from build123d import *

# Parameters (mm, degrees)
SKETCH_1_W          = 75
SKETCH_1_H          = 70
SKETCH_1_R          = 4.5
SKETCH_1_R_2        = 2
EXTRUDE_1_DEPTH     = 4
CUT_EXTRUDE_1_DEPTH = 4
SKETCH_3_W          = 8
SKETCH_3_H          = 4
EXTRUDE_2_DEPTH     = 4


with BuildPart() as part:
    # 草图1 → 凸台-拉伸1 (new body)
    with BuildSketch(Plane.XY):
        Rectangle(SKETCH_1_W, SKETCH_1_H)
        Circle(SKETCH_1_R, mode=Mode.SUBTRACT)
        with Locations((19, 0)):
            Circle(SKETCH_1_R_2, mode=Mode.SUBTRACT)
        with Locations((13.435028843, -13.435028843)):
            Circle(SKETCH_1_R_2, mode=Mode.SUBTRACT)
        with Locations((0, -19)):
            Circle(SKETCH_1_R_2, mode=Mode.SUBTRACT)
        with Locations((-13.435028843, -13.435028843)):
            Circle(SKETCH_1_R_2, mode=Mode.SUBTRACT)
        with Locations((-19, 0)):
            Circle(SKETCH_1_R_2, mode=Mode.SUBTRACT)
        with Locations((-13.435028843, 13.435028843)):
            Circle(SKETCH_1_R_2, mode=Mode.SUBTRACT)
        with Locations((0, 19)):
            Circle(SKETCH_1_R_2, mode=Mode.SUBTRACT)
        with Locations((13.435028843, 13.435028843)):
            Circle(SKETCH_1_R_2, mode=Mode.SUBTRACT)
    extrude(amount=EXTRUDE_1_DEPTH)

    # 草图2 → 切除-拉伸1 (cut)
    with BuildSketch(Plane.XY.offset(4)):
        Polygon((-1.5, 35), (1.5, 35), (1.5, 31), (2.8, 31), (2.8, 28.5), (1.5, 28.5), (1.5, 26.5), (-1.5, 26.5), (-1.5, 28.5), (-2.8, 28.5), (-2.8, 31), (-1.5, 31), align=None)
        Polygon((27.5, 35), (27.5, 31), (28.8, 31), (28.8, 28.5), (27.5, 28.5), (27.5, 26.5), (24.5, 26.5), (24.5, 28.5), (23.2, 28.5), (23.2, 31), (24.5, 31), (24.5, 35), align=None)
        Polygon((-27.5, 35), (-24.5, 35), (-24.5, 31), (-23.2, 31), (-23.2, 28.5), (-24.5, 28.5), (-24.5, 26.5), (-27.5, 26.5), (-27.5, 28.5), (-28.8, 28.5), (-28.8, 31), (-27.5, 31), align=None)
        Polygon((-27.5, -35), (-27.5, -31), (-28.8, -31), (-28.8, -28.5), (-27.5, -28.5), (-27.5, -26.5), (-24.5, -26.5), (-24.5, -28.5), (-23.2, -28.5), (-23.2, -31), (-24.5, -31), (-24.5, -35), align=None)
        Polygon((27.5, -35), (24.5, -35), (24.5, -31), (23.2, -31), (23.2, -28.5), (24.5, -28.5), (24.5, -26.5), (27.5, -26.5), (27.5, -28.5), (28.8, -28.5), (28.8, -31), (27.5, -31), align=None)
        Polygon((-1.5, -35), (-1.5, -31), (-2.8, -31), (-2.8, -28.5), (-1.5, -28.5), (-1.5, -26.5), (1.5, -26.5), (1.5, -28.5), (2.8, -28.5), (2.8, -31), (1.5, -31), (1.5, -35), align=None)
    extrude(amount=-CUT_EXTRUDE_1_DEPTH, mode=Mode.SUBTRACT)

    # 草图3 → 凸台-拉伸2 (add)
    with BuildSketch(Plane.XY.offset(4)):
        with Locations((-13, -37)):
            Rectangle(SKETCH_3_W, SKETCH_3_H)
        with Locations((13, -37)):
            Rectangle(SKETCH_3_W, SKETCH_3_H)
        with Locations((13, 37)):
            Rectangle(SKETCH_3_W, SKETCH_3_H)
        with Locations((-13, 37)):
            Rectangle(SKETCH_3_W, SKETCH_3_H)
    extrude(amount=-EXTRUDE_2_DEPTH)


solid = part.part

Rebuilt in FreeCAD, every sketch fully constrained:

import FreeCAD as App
import Part
import Sketcher

V = App.Vector

doc = App.newDocument("Part")
body = doc.addObject("PartDesign::Body", "Body")

# Sketch on XY plane
sketch1 = body.newObject("Sketcher::SketchObject", "Sketch")
sketch1.AttachmentSupport = (doc.getObject("XY_Plane"), [""])
sketch1.MapMode = "FlatFace"
sketch1.addGeometry([
    Part.LineSegment(V(-37.5, 35, 0), V(-37.5, -35, 0)),  # 0
    Part.LineSegment(V(-37.5, -35, 0), V(37.5, -35, 0)),  # 1
    Part.LineSegment(V(37.5, -35, 0), V(37.5, 35, 0)),  # 2
    Part.LineSegment(V(37.5, 35, 0), V(-37.5, 35, 0)),  # 3
    Part.Circle(V(-13.4, -13.4, 0), V(0, 0, 1), 2),  # 4
    Part.Circle(V(0, -19, 0), V(0, 0, 1), 2),  # 5
    Part.Circle(V(13.4, -13.4, 0), V(0, 0, 1), 2),  # 6
    Part.Circle(V(-19, 0, 0), V(0, 0, 1), 2),  # 7
    Part.Circle(V(-13.4, 13.4, 0), V(0, 0, 1), 2),  # 8
    Part.Circle(V(0, 0, 0), V(0, 0, 1), 4.5),  # 9
    Part.Circle(V(19, 0, 0), V(0, 0, 1), 2),  # 10
    Part.Circle(V(0, 19, 0), V(0, 0, 1), 2),  # 11
    Part.Circle(V(13.4, 13.4, 0), V(0, 0, 1), 2),  # 12
], False)
sketch1.addConstraint([
    Sketcher.Constraint("Coincident", 0, 2, 1, 1),
    Sketcher.Constraint("Coincident", 1, 2, 2, 1),
    Sketcher.Constraint("Coincident", 2, 2, 3, 1),
    Sketcher.Constraint("Coincident", 3, 2, 0, 1),
    Sketcher.Constraint("Vertical", 0),
    Sketcher.Constraint("Horizontal", 1),
    Sketcher.Constraint("Vertical", 2),
    Sketcher.Constraint("Horizontal", 3),
    Sketcher.Constraint("Coincident", 9, 3, -1, 1),
    Sketcher.Constraint("Equal", 4, 5),
    Sketcher.Constraint("Equal", 5, 6),
    Sketcher.Constraint("Equal", 6, 7),
    Sketcher.Constraint("Equal", 7, 8),
    Sketcher.Constraint("Equal", 8, 10),
    Sketcher.Constraint("Equal", 10, 11),
    Sketcher.Constraint("Equal", 11, 12),
    Sketcher.Constraint("Symmetric", 6, 3, 8, 3, -1, 1),
    Sketcher.Constraint("Symmetric", 7, 3, 10, 3, -1, 1),
    Sketcher.Constraint("Symmetric", 5, 3, 11, 3, -1, 1),
    Sketcher.Constraint("Symmetric", 4, 3, 12, 3, -1, 1),
    Sketcher.Constraint("Symmetric", 0, 2, 2, 2, -1, 1),
    Sketcher.Constraint("Symmetric", 4, 3, 6, 3, -2),
    Sketcher.Constraint("PointOnObject", 5, 3, -2),
    Sketcher.Constraint("PointOnObject", 7, 3, -1),
    Sketcher.Constraint("Diameter", 4, 4.0),
    Sketcher.Constraint("Diameter", 9, 9.0),
    Sketcher.Constraint("DistanceX", 1, 1, 1, 2, 75.0),
    Sketcher.Constraint("DistanceY", 0, 2, 0, 1, 70.0),
    Sketcher.Constraint("DistanceY", 5, 3, -1, 1, 19.0),
    Sketcher.Constraint("DistanceX", 7, 3, -1, 1, 19.0),
    Sketcher.Constraint("DistanceX", 4, 3, -1, 1, 13.435029),
    Sketcher.Constraint("DistanceY", 4, 3, -1, 1, 13.435029),
])
pad1 = body.newObject("PartDesign::Pad", "Pad")
pad1.Profile = sketch1
pad1.Length = 4

# Sketch on XY plane
sketch2 = body.newObject("Sketcher::SketchObject", "Sketch001")
sketch2.AttachmentSupport = (doc.getObject("XY_Plane"), [""])
sketch2.MapMode = "FlatFace"
sketch2.AttachmentOffset = App.Placement(V(0, 0, 4), App.Rotation())
sketch2.addGeometry([
    Part.LineSegment(V(1.5, 35, 0), V(-1.5, 35, 0)),  # 0
    Part.LineSegment(V(-1.5, 35, 0), V(-1.5, 31, 0)),  # 1
    Part.LineSegment(V(-1.5, 31, 0), V(-2.8, 31, 0)),  # 2
    Part.LineSegment(V(-2.8, 31, 0), V(-2.8, 28.5, 0)),  # 3
    Part.LineSegment(V(-2.8, 28.5, 0), V(-1.5, 28.5, 0)),  # 4
    Part.LineSegment(V(-1.5, 28.5, 0), V(-1.5, 26.5, 0)),  # 5
    Part.LineSegment(V(-1.5, 26.5, 0), V(1.5, 26.5, 0)),  # 6
    Part.LineSegment(V(1.5, 26.5, 0), V(1.5, 28.5, 0)),  # 7
    Part.LineSegment(V(1.5, 28.5, 0), V(2.8, 28.5, 0)),  # 8
    Part.LineSegment(V(2.8, 28.5, 0), V(2.8, 31, 0)),  # 9
    Part.LineSegment(V(2.8, 31, 0), V(1.5, 31, 0)),  # 10
    Part.LineSegment(V(1.5, 31, 0), V(1.5, 35, 0)),  # 11
    Part.LineSegment(V(27.5, 31, 0), V(27.5, 35, 0)),  # 12
    Part.LineSegment(V(27.5, 35, 0), V(24.5, 35, 0)),  # 13
    Part.LineSegment(V(24.5, 35, 0), V(24.5, 31, 0)),  # 14
    Part.LineSegment(V(24.5, 31, 0), V(23.2, 31, 0)),  # 15
    Part.LineSegment(V(23.2, 31, 0), V(23.2, 28.5, 0)),  # 16
    Part.LineSegment(V(23.2, 28.5, 0), V(24.5, 28.5, 0)),  # 17
    Part.LineSegment(V(24.5, 28.5, 0), V(24.5, 26.5, 0)),  # 18
    Part.LineSegment(V(24.5, 26.5, 0), V(27.5, 26.5, 0)),  # 19
    Part.LineSegment(V(27.5, 26.5, 0), V(27.5, 28.5, 0)),  # 20
    Part.LineSegment(V(27.5, 28.5, 0), V(28.8, 28.5, 0)),  # 21
    Part.LineSegment(V(28.8, 28.5, 0), V(28.8, 31, 0)),  # 22
    Part.LineSegment(V(28.8, 31, 0), V(27.5, 31, 0)),  # 23
    Part.LineSegment(V(-24.5, 35, 0), V(-27.5, 35, 0)),  # 24
    Part.LineSegment(V(-27.5, 35, 0), V(-27.5, 31, 0)),  # 25
    Part.LineSegment(V(-27.5, 31, 0), V(-28.8, 31, 0)),  # 26
    Part.LineSegment(V(-28.8, 31, 0), V(-28.8, 28.5, 0)),  # 27
    Part.LineSegment(V(-28.8, 28.5, 0), V(-27.5, 28.5, 0)),  # 28
    Part.LineSegment(V(-27.5, 28.5, 0), V(-27.5, 26.5, 0)),  # 29
    Part.LineSegment(V(-27.5, 26.5, 0), V(-24.5, 26.5, 0)),  # 30
    Part.LineSegment(V(-24.5, 26.5, 0), V(-24.5, 28.5, 0)),  # 31
    Part.LineSegment(V(-24.5, 28.5, 0), V(-23.2, 28.5, 0)),  # 32
    Part.LineSegment(V(-23.2, 28.5, 0), V(-23.2, 31, 0)),  # 33
    Part.LineSegment(V(-23.2, 31, 0), V(-24.5, 31, 0)),  # 34
    Part.LineSegment(V(-24.5, 31, 0), V(-24.5, 35, 0)),  # 35
    Part.LineSegment(V(-27.5, -31, 0), V(-27.5, -35, 0)),  # 36
    Part.LineSegment(V(-27.5, -35, 0), V(-24.5, -35, 0)),  # 37
    Part.LineSegment(V(-24.5, -35, 0), V(-24.5, -31, 0)),  # 38
    Part.LineSegment(V(-24.5, -31, 0), V(-23.2, -31, 0)),  # 39
    Part.LineSegment(V(-23.2, -31, 0), V(-23.2, -28.5, 0)),  # 40
    Part.LineSegment(V(-23.2, -28.5, 0), V(-24.5, -28.5, 0)),  # 41
    Part.LineSegment(V(-24.5, -28.5, 0), V(-24.5, -26.5, 0)),  # 42
    Part.LineSegment(V(-24.5, -26.5, 0), V(-27.5, -26.5, 0)),  # 43
    Part.LineSegment(V(-27.5, -26.5, 0), V(-27.5, -28.5, 0)),  # 44
    Part.LineSegment(V(-27.5, -28.5, 0), V(-28.8, -28.5, 0)),  # 45
    Part.LineSegment(V(-28.8, -28.5, 0), V(-28.8, -31, 0)),  # 46
    Part.LineSegment(V(-28.8, -31, 0), V(-27.5, -31, 0)),  # 47
    Part.LineSegment(V(24.5, -35, 0), V(27.5, -35, 0)),  # 48
    Part.LineSegment(V(27.5, -35, 0), V(27.5, -31, 0)),  # 49
    Part.LineSegment(V(27.5, -31, 0), V(28.8, -31, 0)),  # 50
    Part.LineSegment(V(28.8, -31, 0), V(28.8, -28.5, 0)),  # 51
    Part.LineSegment(V(28.8, -28.5, 0), V(27.5, -28.5, 0)),  # 52
    Part.LineSegment(V(27.5, -28.5, 0), V(27.5, -26.5, 0)),  # 53
    Part.LineSegment(V(27.5, -26.5, 0), V(24.5, -26.5, 0)),  # 54
    Part.LineSegment(V(24.5, -26.5, 0), V(24.5, -28.5, 0)),  # 55
    Part.LineSegment(V(24.5, -28.5, 0), V(23.2, -28.5, 0)),  # 56
    Part.LineSegment(V(23.2, -28.5, 0), V(23.2, -31, 0)),  # 57
    Part.LineSegment(V(23.2, -31, 0), V(24.5, -31, 0)),  # 58
    Part.LineSegment(V(24.5, -31, 0), V(24.5, -35, 0)),  # 59
    Part.LineSegment(V(-1.5, -31, 0), V(-1.5, -35, 0)),  # 60
    Part.LineSegment(V(-1.5, -35, 0), V(1.5, -35, 0)),  # 61
    Part.LineSegment(V(1.5, -35, 0), V(1.5, -31, 0)),  # 62
    Part.LineSegment(V(1.5, -31, 0), V(2.8, -31, 0)),  # 63
    Part.LineSegment(V(2.8, -31, 0), V(2.8, -28.5, 0)),  # 64
    Part.LineSegment(V(2.8, -28.5, 0), V(1.5, -28.5, 0)),  # 65
    Part.LineSegment(V(1.5, -28.5, 0), V(1.5, -26.5, 0)),  # 66
    Part.LineSegment(V(1.5, -26.5, 0), V(-1.5, -26.5, 0)),  # 67
    Part.LineSegment(V(-1.5, -26.5, 0), V(-1.5, -28.5, 0)),  # 68
    Part.LineSegment(V(-1.5, -28.5, 0), V(-2.8, -28.5, 0)),  # 69
    Part.LineSegment(V(-2.8, -28.5, 0), V(-2.8, -31, 0)),  # 70
    Part.LineSegment(V(-2.8, -31, 0), V(-1.5, -31, 0)),  # 71
], False)
sketch2.addConstraint([
    Sketcher.Constraint("Coincident", 0, 2, 1, 1),
    Sketcher.Constraint("Coincident", 1, 2, 2, 1),
    Sketcher.Constraint("Coincident", 2, 2, 3, 1),
    Sketcher.Constraint("Coincident", 3, 2, 4, 1),
    Sketcher.Constraint("Coincident", 4, 2, 5, 1),
    Sketcher.Constraint("Coincident", 5, 2, 6, 1),
    Sketcher.Constraint("Coincident", 6, 2, 7, 1),
    Sketcher.Constraint("Coincident", 7, 2, 8, 1),
    Sketcher.Constraint("Coincident", 8, 2, 9, 1),
    Sketcher.Constraint("Coincident", 9, 2, 10, 1),
    Sketcher.Constraint("Coincident", 10, 2, 11, 1),
    Sketcher.Constraint("Coincident", 11, 2, 0, 1),
    Sketcher.Constraint("Coincident", 12, 2, 13, 1),
    Sketcher.Constraint("Coincident", 13, 2, 14, 1),
    Sketcher.Constraint("Coincident", 14, 2, 15, 1),
    Sketcher.Constraint("Coincident", 15, 2, 16, 1),
    Sketcher.Constraint("Coincident", 16, 2, 17, 1),
    Sketcher.Constraint("Coincident", 17, 2, 18, 1),
    Sketcher.Constraint("Coincident", 18, 2, 19, 1),
    Sketcher.Constraint("Coincident", 19, 2, 20, 1),
    Sketcher.Constraint("Coincident", 20, 2, 21, 1),
    Sketcher.Constraint("Coincident", 21, 2, 22, 1),
    Sketcher.Constraint("Coincident", 22, 2, 23, 1),
    Sketcher.Constraint("Coincident", 23, 2, 12, 1),
    Sketcher.Constraint("Coincident", 24, 2, 25, 1),
    Sketcher.Constraint("Coincident", 25, 2, 26, 1),
    Sketcher.Constraint("Coincident", 26, 2, 27, 1),
    Sketcher.Constraint("Coincident", 27, 2, 28, 1),
    Sketcher.Constraint("Coincident", 28, 2, 29, 1),
    Sketcher.Constraint("Coincident", 29, 2, 30, 1),
    Sketcher.Constraint("Coincident", 30, 2, 31, 1),
    Sketcher.Constraint("Coincident", 31, 2, 32, 1),
    Sketcher.Constraint("Coincident", 32, 2, 33, 1),
    Sketcher.Constraint("Coincident", 33, 2, 34, 1),
    Sketcher.Constraint("Coincident", 34, 2, 35, 1),
    Sketcher.Constraint("Coincident", 35, 2, 24, 1),
    Sketcher.Constraint("Coincident", 36, 2, 37, 1),
    Sketcher.Constraint("Coincident", 37, 2, 38, 1),
    Sketcher.Constraint("Coincident", 38, 2, 39, 1),
    Sketcher.Constraint("Coincident", 39, 2, 40, 1),
    Sketcher.Constraint("Coincident", 40, 2, 41, 1),
    Sketcher.Constraint("Coincident", 41, 2, 42, 1),
    Sketcher.Constraint("Coincident", 42, 2, 43, 1),
    Sketcher.Constraint("Coincident", 43, 2, 44, 1),
    Sketcher.Constraint("Coincident", 44, 2, 45, 1),
    Sketcher.Constraint("Coincident", 45, 2, 46, 1),
    Sketcher.Constraint("Coincident", 46, 2, 47, 1),
    Sketcher.Constraint("Coincident", 47, 2, 36, 1),
    Sketcher.Constraint("Coincident", 48, 2, 49, 1),
    Sketcher.Constraint("Coincident", 49, 2, 50, 1),
    Sketcher.Constraint("Coincident", 50, 2, 51, 1),
    Sketcher.Constraint("Coincident", 51, 2, 52, 1),
    Sketcher.Constraint("Coincident", 52, 2, 53, 1),
    Sketcher.Constraint("Coincident", 53, 2, 54, 1),
    Sketcher.Constraint("Coincident", 54, 2, 55, 1),
    Sketcher.Constraint("Coincident", 55, 2, 56, 1),
    Sketcher.Constraint("Coincident", 56, 2, 57, 1),
    Sketcher.Constraint("Coincident", 57, 2, 58, 1),
    Sketcher.Constraint("Coincident", 58, 2, 59, 1),
    Sketcher.Constraint("Coincident", 59, 2, 48, 1),
    Sketcher.Constraint("Coincident", 60, 2, 61, 1),
    Sketcher.Constraint("Coincident", 61, 2, 62, 1),
    Sketcher.Constraint("Coincident", 62, 2, 63, 1),
    Sketcher.Constraint("Coincident", 63, 2, 64, 1),
    Sketcher.Constraint("Coincident", 64, 2, 65, 1),
    Sketcher.Constraint("Coincident", 65, 2, 66, 1),
    Sketcher.Constraint("Coincident", 66, 2, 67, 1),
    Sketcher.Constraint("Coincident", 67, 2, 68, 1),
    Sketcher.Constraint("Coincident", 68, 2, 69, 1),
    Sketcher.Constraint("Coincident", 69, 2, 70, 1),
    Sketcher.Constraint("Coincident", 70, 2, 71, 1),
    Sketcher.Constraint("Coincident", 71, 2, 60, 1),
    Sketcher.Constraint("Horizontal", 0),
    Sketcher.Constraint("Vertical", 1),
    Sketcher.Constraint("Horizontal", 2),
    Sketcher.Constraint("Vertical", 3),
    Sketcher.Constraint("Horizontal", 4),
    Sketcher.Constraint("Vertical", 5),
    Sketcher.Constraint("Horizontal", 6),
    Sketcher.Constraint("Vertical", 7),
    Sketcher.Constraint("Horizontal", 8),
    Sketcher.Constraint("Vertical", 9),
    Sketcher.Constraint("Horizontal", 10),
    Sketcher.Constraint("Vertical", 11),
    Sketcher.Constraint("Vertical", 12),
    Sketcher.Constraint("Horizontal", 13),
    Sketcher.Constraint("Vertical", 14),
    Sketcher.Constraint("Horizontal", 15),
    Sketcher.Constraint("Vertical", 16),
    Sketcher.Constraint("Horizontal", 17),
    Sketcher.Constraint("Vertical", 18),
    Sketcher.Constraint("Horizontal", 19),
    Sketcher.Constraint("Vertical", 20),
    Sketcher.Constraint("Horizontal", 21),
    Sketcher.Constraint("Vertical", 22),
    Sketcher.Constraint("Horizontal", 23),
    Sketcher.Constraint("Horizontal", 24),
    Sketcher.Constraint("Vertical", 25),
    Sketcher.Constraint("Horizontal", 26),
    Sketcher.Constraint("Vertical", 27),
    Sketcher.Constraint("Horizontal", 28),
    Sketcher.Constraint("Vertical", 29),
    Sketcher.Constraint("Horizontal", 30),
    Sketcher.Constraint("Vertical", 31),
    Sketcher.Constraint("Horizontal", 32),
    Sketcher.Constraint("Vertical", 33),
    Sketcher.Constraint("Horizontal", 34),
    Sketcher.Constraint("Vertical", 35),
    Sketcher.Constraint("Vertical", 36),
    Sketcher.Constraint("Horizontal", 37),
    Sketcher.Constraint("Vertical", 38),
    Sketcher.Constraint("Horizontal", 39),
    Sketcher.Constraint("Vertical", 40),
    Sketcher.Constraint("Horizontal", 41),
    Sketcher.Constraint("Vertical", 42),
    Sketcher.Constraint("Horizontal", 43),
    Sketcher.Constraint("Vertical", 44),
    Sketcher.Constraint("Horizontal", 45),
    Sketcher.Constraint("Vertical", 46),
    Sketcher.Constraint("Horizontal", 47),
    Sketcher.Constraint("Horizontal", 48),
    Sketcher.Constraint("Vertical", 49),
    Sketcher.Constraint("Horizontal", 50),
    Sketcher.Constraint("Vertical", 51),
    Sketcher.Constraint("Horizontal", 52),
    Sketcher.Constraint("Vertical", 53),
    Sketcher.Constraint("Horizontal", 54),
    Sketcher.Constraint("Vertical", 55),
    Sketcher.Constraint("Horizontal", 56),
    Sketcher.Constraint("Vertical", 57),
    Sketcher.Constraint("Horizontal", 58),
    Sketcher.Constraint("Vertical", 59),
    Sketcher.Constraint("Vertical", 60),
    Sketcher.Constraint("Horizontal", 61),
    Sketcher.Constraint("Vertical", 62),
    Sketcher.Constraint("Horizontal", 63),
    Sketcher.Constraint("Vertical", 64),
    Sketcher.Constraint("Horizontal", 65),
    Sketcher.Constraint("Vertical", 66),
    Sketcher.Constraint("Horizontal", 67),
    Sketcher.Constraint("Vertical", 68),
    Sketcher.Constraint("Horizontal", 69),
    Sketcher.Constraint("Vertical", 70),
    Sketcher.Constraint("Horizontal", 71),
    Sketcher.Constraint("Symmetric", 12, 2, 36, 2, -1, 1),
    Sketcher.Constraint("Symmetric", 14, 2, 38, 2, -1, 1),
    Sketcher.Constraint("Symmetric", 16, 2, 40, 2, -1, 1),
    Sketcher.Constraint("Symmetric", 18, 2, 42, 2, -1, 1),
    Sketcher.Constraint("Symmetric", 20, 2, 44, 2, -1, 1),
    Sketcher.Constraint("Symmetric", 22, 2, 46, 2, -1, 1),
    Sketcher.Constraint("Symmetric", 24, 2, 48, 2, -1, 1),
    Sketcher.Constraint("Symmetric", 26, 2, 50, 2, -1, 1),
    Sketcher.Constraint("Symmetric", 28, 2, 52, 2, -1, 1),
    Sketcher.Constraint("Symmetric", 30, 2, 54, 2, -1, 1),
    Sketcher.Constraint("Symmetric", 32, 2, 56, 2, -1, 1),
    Sketcher.Constraint("Symmetric", 34, 2, 58, 2, -1, 1),
    Sketcher.Constraint("Symmetric", 11, 2, 60, 2, -1, 1),
    Sketcher.Constraint("Symmetric", 1, 2, 62, 2, -1, 1),
    Sketcher.Constraint("Symmetric", 3, 2, 64, 2, -1, 1),
    Sketcher.Constraint("Symmetric", 5, 2, 66, 2, -1, 1),
    Sketcher.Constraint("Symmetric", 7, 2, 68, 2, -1, 1),
    Sketcher.Constraint("Symmetric", 9, 2, 70, 2, -1, 1),
    Sketcher.Constraint("Symmetric", 4, 2, 7, 2, -2),
    Sketcher.Constraint("Symmetric", 2, 2, 9, 2, -2),
    Sketcher.Constraint("Symmetric", 12, 2, 24, 2, -2),
    Sketcher.Constraint("Symmetric", 22, 2, 26, 2, -2),
    Sketcher.Constraint("Symmetric", 20, 2, 28, 2, -2),
    Sketcher.Constraint("Symmetric", 18, 2, 30, 2, -2),
    Sketcher.Constraint("Symmetric", 16, 2, 32, 2, -2),
    Sketcher.Constraint("Symmetric", 14, 2, 34, 2, -2),
    Sketcher.Constraint("Horizontal", 11, 2, 12, 2),
    Sketcher.Constraint("Horizontal", 10, 2, 14, 2),
    Sketcher.Constraint("Horizontal", 8, 2, 16, 2),
    Sketcher.Constraint("Horizontal", 6, 2, 18, 2),
    Sketcher.Constraint("Horizontal", 17, 2, 20, 2),
    Sketcher.Constraint("Horizontal", 15, 2, 22, 2),
    Sketcher.Constraint("Vertical", 1, 2, 4, 2),
    Sketcher.Constraint("Vertical", 7, 2, 10, 2),
    Sketcher.Constraint("Vertical", 14, 2, 17, 2),
    Sketcher.Constraint("Vertical", 12, 2, 19, 2),
    Sketcher.Constraint("Equal", 6, 13),
    Sketcher.Constraint("Equal", 10, 15),
    Sketcher.Constraint("Equal", 17, 21),
    Sketcher.Constraint("DistanceX", 0, 2, 0, 1, 3.0),
    Sketcher.Constraint("DistanceY", 1, 2, 1, 1, 4.0),
    Sketcher.Constraint("DistanceY", 5, 2, 5, 1, 2.0),
    Sketcher.Constraint("DistanceX", 2, 2, 2, 1, 1.3),
    Sketcher.Constraint("DistanceY", 3, 2, 3, 1, 2.5),
    Sketcher.Constraint("DistanceY", -1, 1, 0, 2, 35.0),
    Sketcher.Constraint("DistanceX", -1, 1, 12, 2, 27.5),
])
pocket1 = body.newObject("PartDesign::Pocket", "Pocket")
pocket1.Profile = sketch2
pocket1.Length = 4

# Sketch on XY plane
sketch3 = body.newObject("Sketcher::SketchObject", "Sketch002")
sketch3.AttachmentSupport = (doc.getObject("XY_Plane"), [""])
sketch3.MapMode = "FlatFace"
sketch3.AttachmentOffset = App.Placement(V(0, 0, 4), App.Rotation())
sketch3.addGeometry([
    Part.LineSegment(V(-17, -35, 0), V(-17, -39, 0)),  # 0
    Part.LineSegment(V(-17, -39, 0), V(-9, -39, 0)),  # 1
    Part.LineSegment(V(-9, -39, 0), V(-9, -35, 0)),  # 2
    Part.LineSegment(V(-9, -35, 0), V(-17, -35, 0)),  # 3
    Part.LineSegment(V(9, -35, 0), V(9, -39, 0)),  # 4
    Part.LineSegment(V(9, -39, 0), V(17, -39, 0)),  # 5
    Part.LineSegment(V(17, -39, 0), V(17, -35, 0)),  # 6
    Part.LineSegment(V(17, -35, 0), V(9, -35, 0)),  # 7
    Part.LineSegment(V(9, 39, 0), V(9, 35, 0)),  # 8
    Part.LineSegment(V(9, 35, 0), V(17, 35, 0)),  # 9
    Part.LineSegment(V(17, 35, 0), V(17, 39, 0)),  # 10
    Part.LineSegment(V(17, 39, 0), V(9, 39, 0)),  # 11
    Part.LineSegment(V(-17, 39, 0), V(-17, 35, 0)),  # 12
    Part.LineSegment(V(-17, 35, 0), V(-9, 35, 0)),  # 13
    Part.LineSegment(V(-9, 35, 0), V(-9, 39, 0)),  # 14
    Part.LineSegment(V(-9, 39, 0), V(-17, 39, 0)),  # 15
], False)
sketch3.addConstraint([
    Sketcher.Constraint("Coincident", 0, 2, 1, 1),
    Sketcher.Constraint("Coincident", 1, 2, 2, 1),
    Sketcher.Constraint("Coincident", 2, 2, 3, 1),
    Sketcher.Constraint("Coincident", 3, 2, 0, 1),
    Sketcher.Constraint("Coincident", 4, 2, 5, 1),
    Sketcher.Constraint("Coincident", 5, 2, 6, 1),
    Sketcher.Constraint("Coincident", 6, 2, 7, 1),
    Sketcher.Constraint("Coincident", 7, 2, 4, 1),
    Sketcher.Constraint("Coincident", 8, 2, 9, 1),
    Sketcher.Constraint("Coincident", 9, 2, 10, 1),
    Sketcher.Constraint("Coincident", 10, 2, 11, 1),
    Sketcher.Constraint("Coincident", 11, 2, 8, 1),
    Sketcher.Constraint("Coincident", 12, 2, 13, 1),
    Sketcher.Constraint("Coincident", 13, 2, 14, 1),
    Sketcher.Constraint("Coincident", 14, 2, 15, 1),
    Sketcher.Constraint("Coincident", 15, 2, 12, 1),
    Sketcher.Constraint("Vertical", 0),
    Sketcher.Constraint("Horizontal", 1),
    Sketcher.Constraint("Vertical", 2),
    Sketcher.Constraint("Horizontal", 3),
    Sketcher.Constraint("Vertical", 4),
    Sketcher.Constraint("Horizontal", 5),
    Sketcher.Constraint("Vertical", 6),
    Sketcher.Constraint("Horizontal", 7),
    Sketcher.Constraint("Vertical", 8),
    Sketcher.Constraint("Horizontal", 9),
    Sketcher.Constraint("Vertical", 10),
    Sketcher.Constraint("Horizontal", 11),
    Sketcher.Constraint("Vertical", 12),
    Sketcher.Constraint("Horizontal", 13),
    Sketcher.Constraint("Vertical", 14),
    Sketcher.Constraint("Horizontal", 15),
    Sketcher.Constraint("Symmetric", 2, 2, 8, 2, -1, 1),
    Sketcher.Constraint("Symmetric", 0, 2, 10, 2, -1, 1),
    Sketcher.Constraint("Symmetric", 6, 2, 12, 2, -1, 1),
    Sketcher.Constraint("Symmetric", 4, 2, 14, 2, -1, 1),
    Sketcher.Constraint("Symmetric", 1, 2, 4, 2, -2),
    Sketcher.Constraint("Symmetric", 3, 2, 6, 2, -2),
    Sketcher.Constraint("DistanceX", 1, 1, 1, 2, 8.0),
    Sketcher.Constraint("DistanceY", 0, 2, 0, 1, 4.0),
    Sketcher.Constraint("DistanceX", 0, 2, -1, 1, 17.0),
    Sketcher.Constraint("DistanceY", 0, 2, -1, 1, 39.0),
])
pad2 = body.newObject("PartDesign::Pad", "Pad001")
pad2.Profile = sketch3
pad2.Length = 4
pad2.Reversed = True

doc.recompute()
